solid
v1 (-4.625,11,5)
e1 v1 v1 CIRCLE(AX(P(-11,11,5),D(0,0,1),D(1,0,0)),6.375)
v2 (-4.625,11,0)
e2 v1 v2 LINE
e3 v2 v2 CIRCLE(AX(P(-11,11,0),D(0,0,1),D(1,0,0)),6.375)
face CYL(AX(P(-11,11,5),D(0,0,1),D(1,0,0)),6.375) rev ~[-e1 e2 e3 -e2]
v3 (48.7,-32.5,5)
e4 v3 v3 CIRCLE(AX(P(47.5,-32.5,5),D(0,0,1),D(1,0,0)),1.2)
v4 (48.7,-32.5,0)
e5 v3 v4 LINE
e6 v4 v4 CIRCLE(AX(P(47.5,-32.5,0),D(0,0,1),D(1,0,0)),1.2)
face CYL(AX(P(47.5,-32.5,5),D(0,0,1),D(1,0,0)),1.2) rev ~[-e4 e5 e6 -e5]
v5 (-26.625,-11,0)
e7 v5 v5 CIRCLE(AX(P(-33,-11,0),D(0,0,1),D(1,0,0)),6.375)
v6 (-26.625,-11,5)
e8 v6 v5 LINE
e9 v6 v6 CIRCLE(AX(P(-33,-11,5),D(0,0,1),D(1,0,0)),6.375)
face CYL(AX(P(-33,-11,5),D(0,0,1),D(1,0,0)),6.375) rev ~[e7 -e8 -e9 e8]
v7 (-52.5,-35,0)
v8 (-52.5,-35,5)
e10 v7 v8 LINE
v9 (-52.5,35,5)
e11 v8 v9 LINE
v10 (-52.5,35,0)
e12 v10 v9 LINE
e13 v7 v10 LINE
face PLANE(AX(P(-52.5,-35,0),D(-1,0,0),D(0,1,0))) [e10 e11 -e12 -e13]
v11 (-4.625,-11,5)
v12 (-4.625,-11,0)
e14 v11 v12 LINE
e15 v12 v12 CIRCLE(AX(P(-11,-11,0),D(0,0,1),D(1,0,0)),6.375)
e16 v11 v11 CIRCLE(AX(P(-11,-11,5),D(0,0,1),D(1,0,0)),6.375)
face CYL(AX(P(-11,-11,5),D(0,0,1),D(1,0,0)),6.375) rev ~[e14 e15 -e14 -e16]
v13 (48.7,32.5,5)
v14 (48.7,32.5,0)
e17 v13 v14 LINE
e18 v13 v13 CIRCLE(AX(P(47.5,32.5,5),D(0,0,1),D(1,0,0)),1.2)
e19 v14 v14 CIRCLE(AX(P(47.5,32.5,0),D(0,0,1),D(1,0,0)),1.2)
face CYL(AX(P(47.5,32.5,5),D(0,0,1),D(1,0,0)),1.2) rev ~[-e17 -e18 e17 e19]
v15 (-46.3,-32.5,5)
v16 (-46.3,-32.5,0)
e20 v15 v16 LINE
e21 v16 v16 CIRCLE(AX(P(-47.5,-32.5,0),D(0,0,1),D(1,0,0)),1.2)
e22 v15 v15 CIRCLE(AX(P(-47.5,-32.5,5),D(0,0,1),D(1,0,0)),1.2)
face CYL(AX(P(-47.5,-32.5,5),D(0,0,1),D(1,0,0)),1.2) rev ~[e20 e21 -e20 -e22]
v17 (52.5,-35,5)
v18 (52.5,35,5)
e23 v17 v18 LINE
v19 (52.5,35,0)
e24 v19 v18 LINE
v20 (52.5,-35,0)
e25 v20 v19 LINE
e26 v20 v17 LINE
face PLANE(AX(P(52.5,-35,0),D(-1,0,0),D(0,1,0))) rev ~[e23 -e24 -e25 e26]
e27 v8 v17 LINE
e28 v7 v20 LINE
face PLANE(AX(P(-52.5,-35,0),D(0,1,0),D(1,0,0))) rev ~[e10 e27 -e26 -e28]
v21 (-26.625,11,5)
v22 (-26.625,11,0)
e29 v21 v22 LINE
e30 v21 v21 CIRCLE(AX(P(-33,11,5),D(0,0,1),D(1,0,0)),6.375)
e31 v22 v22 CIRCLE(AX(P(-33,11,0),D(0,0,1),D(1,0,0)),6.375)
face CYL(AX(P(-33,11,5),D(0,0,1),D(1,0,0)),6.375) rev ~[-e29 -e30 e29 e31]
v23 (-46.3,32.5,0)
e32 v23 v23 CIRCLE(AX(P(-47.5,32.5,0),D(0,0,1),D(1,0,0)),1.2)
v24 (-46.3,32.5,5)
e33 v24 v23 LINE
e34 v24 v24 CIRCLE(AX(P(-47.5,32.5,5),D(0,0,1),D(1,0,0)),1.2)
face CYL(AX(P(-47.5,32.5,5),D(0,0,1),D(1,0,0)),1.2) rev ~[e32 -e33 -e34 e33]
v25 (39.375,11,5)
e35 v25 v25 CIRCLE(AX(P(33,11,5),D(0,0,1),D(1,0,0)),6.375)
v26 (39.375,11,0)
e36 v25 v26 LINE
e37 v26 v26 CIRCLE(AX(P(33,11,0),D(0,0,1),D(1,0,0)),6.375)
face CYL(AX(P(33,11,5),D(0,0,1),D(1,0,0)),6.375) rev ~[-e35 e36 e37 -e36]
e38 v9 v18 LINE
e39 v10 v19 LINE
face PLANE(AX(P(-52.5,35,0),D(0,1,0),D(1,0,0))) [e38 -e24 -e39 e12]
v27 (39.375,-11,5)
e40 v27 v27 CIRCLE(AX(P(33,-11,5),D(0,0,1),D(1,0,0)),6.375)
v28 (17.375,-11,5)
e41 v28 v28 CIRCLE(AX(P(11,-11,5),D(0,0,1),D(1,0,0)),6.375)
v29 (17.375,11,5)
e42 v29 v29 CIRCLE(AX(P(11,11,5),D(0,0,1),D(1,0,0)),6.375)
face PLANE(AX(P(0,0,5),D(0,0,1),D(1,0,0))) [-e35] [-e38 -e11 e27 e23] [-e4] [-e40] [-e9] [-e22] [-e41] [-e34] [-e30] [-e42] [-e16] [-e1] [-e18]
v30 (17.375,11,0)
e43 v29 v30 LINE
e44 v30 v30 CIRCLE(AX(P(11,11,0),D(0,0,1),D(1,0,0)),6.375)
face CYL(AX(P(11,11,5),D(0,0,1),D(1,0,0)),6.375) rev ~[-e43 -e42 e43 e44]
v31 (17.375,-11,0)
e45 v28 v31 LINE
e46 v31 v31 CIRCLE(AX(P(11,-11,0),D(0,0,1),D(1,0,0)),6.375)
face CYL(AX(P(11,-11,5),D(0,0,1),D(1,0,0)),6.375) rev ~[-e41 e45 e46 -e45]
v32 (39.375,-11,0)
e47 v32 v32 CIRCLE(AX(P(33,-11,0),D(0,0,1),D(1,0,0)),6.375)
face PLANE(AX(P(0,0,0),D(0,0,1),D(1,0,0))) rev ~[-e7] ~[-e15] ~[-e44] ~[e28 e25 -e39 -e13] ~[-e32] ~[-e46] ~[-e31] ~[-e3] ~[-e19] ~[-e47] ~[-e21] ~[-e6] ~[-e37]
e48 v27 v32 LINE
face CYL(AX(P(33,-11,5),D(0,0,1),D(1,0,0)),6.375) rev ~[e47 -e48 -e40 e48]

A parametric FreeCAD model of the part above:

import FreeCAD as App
import Part
import Sketcher

V = App.Vector

doc = App.newDocument("Part")
params = doc.addObject("Spreadsheet::Sheet", "Params")
for row, (alias, value) in enumerate([
    ("sketch1_width", "105 mm"),
    ("sketch1_height", "70 mm"),
    ("pad1_length", "5 mm"),
    ("sketch2_diameter", "12.75 mm"),
    ("pocket1_length", "5 mm"),
    ("sketch3_diameter", "2.4 mm"),
    ("pocket2_length", "25 mm"),
], start=1):
    params.set(f"A{row}", alias)
    params.set(f"B{row}", "=" + value)
    params.setAlias(f"B{row}", alias)

body = doc.addObject("PartDesign::Body", "Body")

# Sketch on XY plane
sketch1 = body.newObject("Sketcher::SketchObject", "Sketch")
sketch1.AttachmentSupport = (doc.getObject("XY_Plane"), [""])
sketch1.MapMode = "FlatFace"
sketch1.addGeometry([
    Part.LineSegment(V(-52, 35, 0), V(-52, -35, 0)),
    Part.LineSegment(V(-52, -35, 0), V(52, -35, 0)),
    Part.LineSegment(V(52, -35, 0), V(52, 35, 0)),
    Part.LineSegment(V(52, 35, 0), V(-52, 35, 0)),
], False)
sketch1.addConstraint([
    Sketcher.Constraint("Coincident", 0, 2, 1, 1),
    Sketcher.Constraint("Coincident", 1, 2, 2, 1),
    Sketcher.Constraint("Coincident", 2, 2, 3, 1),
    Sketcher.Constraint("Coincident", 3, 2, 0, 1),
    Sketcher.Constraint("Vertical", 0),
    Sketcher.Constraint("Horizontal", 1),
    Sketcher.Constraint("Vertical", 2),
    Sketcher.Constraint("Horizontal", 3),
    Sketcher.Constraint("Symmetric", 0, 2, 2, 2, -1, 1),
    Sketcher.Constraint("DistanceX", 1, 1, 1, 2, 105.0),
    Sketcher.Constraint("DistanceY", 0, 2, 0, 1, 70.0),
])
sketch1.setExpression("Constraints[9]", "Params.sketch1_width")
sketch1.setExpression("Constraints[10]", "Params.sketch1_height")
pad1 = body.newObject("PartDesign::Pad", "Pad")
pad1.Profile = sketch1
pad1.setExpression("Length", "Params.pad1_length")

# Sketch on XY plane
sketch2 = body.newObject("Sketcher::SketchObject", "Sketch001")
sketch2.AttachmentSupport = (doc.getObject("XY_Plane"), [""])
sketch2.MapMode = "FlatFace"
sketch2.AttachmentOffset = App.Placement(V(0, 0, 5), App.Rotation())
sketch2.addGeometry([
    Part.Circle(V(-33, 11, 0), V(0, 0, 1), 6),  # 0
    Part.Circle(V(33, 11, 0), V(0, 0, 1), 6),  # 1
    Part.Circle(V(33, -11, 0), V(0, 0, 1), 6),  # 2
    Part.Circle(V(-33, -11, 0), V(0, 0, 1), 6),  # 3
    Part.Circle(V(-11, 11, 0), V(0, 0, 1), 6),  # 4
    Part.Circle(V(11, 11, 0), V(0, 0, 1), 6),  # 5
    Part.Circle(V(-11, -11, 0), V(0, 0, 1), 6),  # 6
    Part.Circle(V(11, -11, 0), V(0, 0, 1), 6),  # 7
], False)
sketch2.addConstraint([
    Sketcher.Constraint("Equal", 0, 1),
    Sketcher.Constraint("Equal", 1, 2),
    Sketcher.Constraint("Equal", 2, 3),
    Sketcher.Constraint("Equal", 3, 4),
    Sketcher.Constraint("Equal", 4, 5),
    Sketcher.Constraint("Equal", 5, 6),
    Sketcher.Constraint("Equal", 6, 7),
    Sketcher.Constraint("Symmetric", 0, 3, 2, 3, -1, 1),
    Sketcher.Constraint("Symmetric", 1, 3, 3, 3, -1, 1),
    Sketcher.Constraint("Symmetric", 5, 3, 6, 3, -1, 1),
    Sketcher.Constraint("Symmetric", 4, 3, 7, 3, -1, 1),
    Sketcher.Constraint("Symmetric", 0, 3, 1, 3, -2),
    Sketcher.Constraint("Symmetric", 4, 3, 5, 3, -2),
    Sketcher.Constraint("Horizontal", 1, 3, 4, 3),
    Sketcher.Constraint("Diameter", 0, 12.75),
    Sketcher.Constraint("DistanceX", 0, 3, -1, 1, 33.0),
    Sketcher.Constraint("DistanceY", -1, 1, 0, 3, 11.0),
    Sketcher.Constraint("DistanceX", 4, 3, -1, 1, 11.0),
])
sketch2.setExpression("Constraints[14]", "Params.sketch2_diameter")
pocket1 = body.newObject("PartDesign::Pocket", "Pocket")
pocket1.Profile = sketch2
pocket1.setExpression("Length", "Params.pocket1_length")

# Sketch on XY plane
sketch3 = body.newObject("Sketcher::SketchObject", "Sketch002")
sketch3.AttachmentSupport = (doc.getObject("XY_Plane"), [""])
sketch3.MapMode = "FlatFace"
sketch3.AttachmentOffset = App.Placement(V(0, 0, 5), App.Rotation())
sketch3.addGeometry([
    Part.Circle(V(-47.5, 32.5, 0), V(0, 0, 1), 1.2),
    Part.Circle(V(47.5, 32.5, 0), V(0, 0, 1), 1.2),
    Part.Circle(V(-47.5, -32.5, 0), V(0, 0, 1), 1.2),
    Part.Circle(V(47.5, -32.5, 0), V(0, 0, 1), 1.2),
], False)
sketch3.addConstraint([
    Sketcher.Constraint("Equal", 0, 1),
    Sketcher.Constraint("Equal", 1, 2),
    Sketcher.Constraint("Equal", 2, 3),
    Sketcher.Constraint("Symmetric", 1, 3, 2, 3, -1, 1),
    Sketcher.Constraint("Symmetric", 0, 3, 3, 3, -1, 1),
    Sketcher.Constraint("Symmetric", 0, 3, 1, 3, -2),
    Sketcher.Constraint("Diameter", 0, 2.4),
    Sketcher.Constraint("DistanceX", 0, 3, 1, 3, 95.0),
    Sketcher.Constraint("DistanceY", 2, 3, 0, 3, 65.0),
])
sketch3.setExpression("Constraints[6]", "Params.sketch3_diameter")
pocket2 = body.newObject("PartDesign::Pocket", "Pocket001")
pocket2.Profile = sketch3
pocket2.setExpression("Length", "Params.pocket2_length")

doc.recompute()
